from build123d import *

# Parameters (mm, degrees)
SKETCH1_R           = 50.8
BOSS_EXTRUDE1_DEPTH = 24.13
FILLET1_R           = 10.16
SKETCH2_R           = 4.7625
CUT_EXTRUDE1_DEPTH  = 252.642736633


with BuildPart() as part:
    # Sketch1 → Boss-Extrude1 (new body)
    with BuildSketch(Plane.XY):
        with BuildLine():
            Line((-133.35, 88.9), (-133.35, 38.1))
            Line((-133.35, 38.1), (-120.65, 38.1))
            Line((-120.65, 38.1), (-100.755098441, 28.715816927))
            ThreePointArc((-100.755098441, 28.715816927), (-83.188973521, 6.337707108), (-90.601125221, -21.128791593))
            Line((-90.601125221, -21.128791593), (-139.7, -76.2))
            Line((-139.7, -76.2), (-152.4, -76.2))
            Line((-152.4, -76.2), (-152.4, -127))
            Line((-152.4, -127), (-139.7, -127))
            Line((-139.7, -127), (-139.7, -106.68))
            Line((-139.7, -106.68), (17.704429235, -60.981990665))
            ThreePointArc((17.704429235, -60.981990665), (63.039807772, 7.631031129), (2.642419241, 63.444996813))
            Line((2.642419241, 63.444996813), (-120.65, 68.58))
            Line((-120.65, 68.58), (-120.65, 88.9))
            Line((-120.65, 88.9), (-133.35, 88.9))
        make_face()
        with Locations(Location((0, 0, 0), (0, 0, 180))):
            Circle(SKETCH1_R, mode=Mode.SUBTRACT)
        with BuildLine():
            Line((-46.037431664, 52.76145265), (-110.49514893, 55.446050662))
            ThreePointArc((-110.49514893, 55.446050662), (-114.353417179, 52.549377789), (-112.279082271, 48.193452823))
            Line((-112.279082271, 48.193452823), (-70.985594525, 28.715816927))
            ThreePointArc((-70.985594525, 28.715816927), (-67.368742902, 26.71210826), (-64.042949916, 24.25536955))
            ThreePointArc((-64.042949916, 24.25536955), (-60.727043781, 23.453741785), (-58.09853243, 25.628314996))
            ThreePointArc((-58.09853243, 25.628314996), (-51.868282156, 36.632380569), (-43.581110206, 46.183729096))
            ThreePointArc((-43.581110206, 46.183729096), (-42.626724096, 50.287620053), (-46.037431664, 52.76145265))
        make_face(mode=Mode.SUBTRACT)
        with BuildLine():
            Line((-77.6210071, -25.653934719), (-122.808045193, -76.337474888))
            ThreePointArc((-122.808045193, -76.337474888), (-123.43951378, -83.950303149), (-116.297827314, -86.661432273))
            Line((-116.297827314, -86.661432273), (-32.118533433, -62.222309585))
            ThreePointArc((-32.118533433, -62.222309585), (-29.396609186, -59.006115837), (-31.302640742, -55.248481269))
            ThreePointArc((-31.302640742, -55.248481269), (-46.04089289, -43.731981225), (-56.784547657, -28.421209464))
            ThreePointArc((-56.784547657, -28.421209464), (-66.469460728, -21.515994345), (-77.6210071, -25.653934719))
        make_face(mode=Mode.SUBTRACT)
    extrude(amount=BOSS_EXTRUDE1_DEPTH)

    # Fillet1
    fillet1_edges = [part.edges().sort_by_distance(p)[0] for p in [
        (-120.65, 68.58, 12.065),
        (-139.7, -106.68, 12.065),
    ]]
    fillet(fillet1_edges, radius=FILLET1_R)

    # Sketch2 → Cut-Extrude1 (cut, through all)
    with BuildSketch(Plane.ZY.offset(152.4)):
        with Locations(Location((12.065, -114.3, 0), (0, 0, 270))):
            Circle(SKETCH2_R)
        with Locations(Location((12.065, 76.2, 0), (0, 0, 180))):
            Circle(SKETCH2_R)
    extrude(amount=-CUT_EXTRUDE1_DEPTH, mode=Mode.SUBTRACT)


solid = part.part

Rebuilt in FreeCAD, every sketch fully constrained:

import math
import FreeCAD as App
import Part
import Sketcher
Q = App.Units.Quantity


def edges_at(feature, points):
    """Names of the edges that pass closest to the given points."""
    edges = feature.Shape.Edges
    near = lambda p: min(range(len(edges)), key=lambda i: edges[i].distToShape(Part.Vertex(*p))[0])
    return sorted({f"Edge{near(p) + 1}" for p in points})

doc = App.newDocument("Part")
body = doc.addObject("PartDesign::Body", "Body")

sketch1 = body.newObject("Sketcher::SketchObject", "Sketch")
sketch1.AttachmentSupport = (doc.getObject("XY_Plane"), [""])
sketch1.MapMode = "FlatFace"
sketch1.addGeometry(Part.LineSegment(App.Vector(-133.3, 88.9, 0), App.Vector(-133.3, 38.1, 0)), False)
sketch1.addGeometry(Part.LineSegment(App.Vector(-133.3, 38.1, 0), App.Vector(-120.7, 38.1, 0)), False)
sketch1.addGeometry(Part.LineSegment(App.Vector(-120.7, 38.1, 0), App.Vector(-100.8, 28.7, 0)), False)
sketch1.addGeometry(Part.ArcOfCircle(Part.Circle(App.Vector(-114.3, 0, 0), App.Vector(0, 0, 1), 31.8), math.radians(-42), math.radians(65)), False)
sketch1.addGeometry(Part.LineSegment(App.Vector(-90.6, -21.1, 0), App.Vector(-139.7, -76.2, 0)), False)
sketch1.addGeometry(Part.LineSegment(App.Vector(-139.7, -76.2, 0), App.Vector(-152.4, -76.2, 0)), False)
sketch1.addGeometry(Part.LineSegment(App.Vector(-152.4, -76.2, 0), App.Vector(-152.4, -127, 0)), False)
sketch1.addGeometry(Part.LineSegment(App.Vector(-152.4, -127, 0), App.Vector(-139.7, -127, 0)), False)
sketch1.addGeometry(Part.LineSegment(App.Vector(-139.7, -127, 0), App.Vector(-139.7, -106.7, 0)), False)
sketch1.addGeometry(Part.LineSegment(App.Vector(-139.7, -106.7, 0), App.Vector(17.7, -61, 0)), False)
sketch1.addGeometry(Part.ArcOfCircle(Part.Circle(App.Vector(0, 0, 0), App.Vector(0, 0, 1), 63.5), math.radians(-74), math.radians(88)), False)
sketch1.addGeometry(Part.LineSegment(App.Vector(2.6, 63.4, 0), App.Vector(-120.7, 68.6, 0)), False)
sketch1.addGeometry(Part.LineSegment(App.Vector(-120.7, 68.6, 0), App.Vector(-120.7, 88.9, 0)), False)
sketch1.addGeometry(Part.LineSegment(App.Vector(-120.7, 88.9, 0), App.Vector(-133.3, 88.9, 0)), False)
sketch1.addGeometry(Part.LineSegment(App.Vector(-122.8, -76.3, 0), App.Vector(-77.6, -25.7, 0)), False)
sketch1.addGeometry(Part.ArcOfCircle(Part.Circle(App.Vector(-68.1, -34.1, 0), App.Vector(0, 0, 1), 12.7), math.radians(27), math.radians(138)), False)
sketch1.addGeometry(Part.ArcOfCircle(Part.Circle(App.Vector(0, 0, 0), App.Vector(0, 0, 1), 63.5), math.radians(-153), math.radians(-120)), False)
sketch1.addGeometry(Part.ArcOfCircle(Part.Circle(App.Vector(-33.2, -58.6, 0), App.Vector(0, 0, 1), 3.8), math.radians(-74), math.radians(60)), False)
sketch1.addGeometry(Part.LineSegment(App.Vector(-32.1, -62.2, 0), App.Vector(-116.3, -86.7, 0)), False)
sketch1.addGeometry(Part.ArcOfCircle(Part.Circle(App.Vector(-118.1, -80.6, 0), App.Vector(0, 0, 1), 6.3), math.radians(138), math.radians(286)), False)
sketch1.addGeometry(Part.LineSegment(App.Vector(-110.5, 55.4, 0), App.Vector(-46, 52.8, 0)), False)
sketch1.addGeometry(Part.ArcOfCircle(Part.Circle(App.Vector(-46.2, 49, 0), App.Vector(0, 0, 1), 3.8), math.radians(-47), math.radians(88)), False)
sketch1.addGeometry(Part.ArcOfCircle(Part.Circle(App.Vector(0, 0, 0), App.Vector(0, 0, 1), 63.5), math.radians(133), math.radians(156)), False)
sketch1.addGeometry(Part.ArcOfCircle(Part.Circle(App.Vector(-61.6, 27.2, 0), App.Vector(0, 0, 1), 3.8), math.radians(-130), math.radians(-24)), False)
sketch1.addGeometry(Part.ArcOfCircle(Part.Circle(App.Vector(-84.5, 0, 0), App.Vector(0, 0, 1), 31.8), math.radians(49.81), math.radians(64.75)), False)
sketch1.addGeometry(Part.LineSegment(App.Vector(-71, 28.7, 0), App.Vector(-112.3, 48.2, 0)), False)
sketch1.addGeometry(Part.ArcOfCircle(Part.Circle(App.Vector(-110.7, 51.6, 0), App.Vector(0, 0, 1), 3.8), math.radians(88), math.radians(245)), False)
sketch1.addGeometry(Part.Circle(App.Vector(0, 0, 0), App.Vector(0, 0, 1), 50.8), False)
sketch1.addConstraint(Sketcher.Constraint("Coincident", 0, 2, 1, 1))
sketch1.addConstraint(Sketcher.Constraint("Coincident", 1, 2, 2, 1))
sketch1.addConstraint(Sketcher.Constraint("Tangent", 2, 2, 3, 2))
sketch1.addConstraint(Sketcher.Constraint("Tangent", 3, 1, 4, 1))
sketch1.addConstraint(Sketcher.Constraint("Coincident", 4, 2, 5, 1))
sketch1.addConstraint(Sketcher.Constraint("Coincident", 5, 2, 6, 1))
sketch1.addConstraint(Sketcher.Constraint("Coincident", 6, 2, 7, 1))
sketch1.addConstraint(Sketcher.Constraint("Coincident", 7, 2, 8, 1))
sketch1.addConstraint(Sketcher.Constraint("Coincident", 8, 2, 9, 1))
sketch1.addConstraint(Sketcher.Constraint("Tangent", 9, 2, 10, 1))
sketch1.addConstraint(Sketcher.Constraint("Tangent", 10, 2, 11, 1))
sketch1.addConstraint(Sketcher.Constraint("Coincident", 11, 2, 12, 1))
sketch1.addConstraint(Sketcher.Constraint("Coincident", 12, 2, 13, 1))
sketch1.addConstraint(Sketcher.Constraint("Coincident", 13, 2, 0, 1))
sketch1.addConstraint(Sketcher.Constraint("Tangent", 14, 2, 15, 2))
sketch1.addConstraint(Sketcher.Constraint("Tangent", 15, 1, 16, 1))
sketch1.addConstraint(Sketcher.Constraint("Tangent", 16, 2, 17, 2))
sketch1.addConstraint(Sketcher.Constraint("Tangent", 17, 1, 18, 1))
sketch1.addConstraint(Sketcher.Constraint("Tangent", 18, 2, 19, 2))
sketch1.addConstraint(Sketcher.Constraint("Tangent", 19, 1, 14, 1))
sketch1.addConstraint(Sketcher.Constraint("Tangent", 20, 2, 21, 2))
sketch1.addConstraint(Sketcher.Constraint("Tangent", 21, 1, 22, 1))
sketch1.addConstraint(Sketcher.Constraint("Tangent", 22, 2, 23, 2))
sketch1.addConstraint(Sketcher.Constraint("Tangent", 23, 1, 24, 1))
sketch1.addConstraint(Sketcher.Constraint("Tangent", 24, 2, 25, 1))
sketch1.addConstraint(Sketcher.Constraint("Tangent", 25, 2, 26, 2))
sketch1.addConstraint(Sketcher.Constraint("Tangent", 26, 1, 20, 1))
sketch1.addConstraint(Sketcher.Constraint("Vertical", 0))
sketch1.addConstraint(Sketcher.Constraint("Horizontal", 1))
sketch1.addConstraint(Sketcher.Constraint("Horizontal", 5))
sketch1.addConstraint(Sketcher.Constraint("Vertical", 6))
sketch1.addConstraint(Sketcher.Constraint("Horizontal", 7))
sketch1.addConstraint(Sketcher.Constraint("Vertical", 8))
sketch1.addConstraint(Sketcher.Constraint("Vertical", 12))
sketch1.addConstraint(Sketcher.Constraint("Horizontal", 13))
sketch1.addConstraint(Sketcher.Constraint("Coincident", 10, 3, -1, 1))
sketch1.addConstraint(Sketcher.Constraint("Coincident", 16, 3, -1, 1))
sketch1.addConstraint(Sketcher.Constraint("Coincident", 22, 3, -1, 1))
sketch1.addConstraint(Sketcher.Constraint("Coincident", 27, 3, -1, 1))
sketch1.addConstraint(Sketcher.Constraint("Equal", 10, 16))
sketch1.addConstraint(Sketcher.Constraint("Equal", 17, 21))
sketch1.addConstraint(Sketcher.Constraint("Equal", 16, 22))
sketch1.addConstraint(Sketcher.Constraint("Equal", 21, 23))
sketch1.addConstraint(Sketcher.Constraint("Equal", 3, 24))
sketch1.addConstraint(Sketcher.Constraint("Equal", 23, 26))
sketch1.addConstraint(Sketcher.Constraint("PointOnObject", 3, 3, -1))
sketch1.addConstraint(Sketcher.Constraint("PointOnObject", 24, 3, -1))
sketch1.addConstraint(Sketcher.Constraint("Parallel", 4, 14))
sketch1.addConstraint(Sketcher.Constraint("Parallel", 9, 18))
sketch1.addConstraint(Sketcher.Constraint("Parallel", 11, 20))
sketch1.addConstraint(Sketcher.Constraint("Parallel", 2, 25))
sketch1.addConstraint(Sketcher.Constraint("Vertical", 4, 2, 7, 2))
sketch1.addConstraint(Sketcher.Constraint("Vertical", 1, 2, 11, 2))
sketch1.addConstraint(Sketcher.Constraint("Equal", 1, 5))
sketch1.addConstraint(Sketcher.Constraint("Equal", 0, 6))
sketch1.addConstraint(Sketcher.Constraint("Equal", 8, 12))
sketch1.addConstraint(Sketcher.Constraint("Diameter", 27, Q("4 in")))
sketch1.addConstraint(Sketcher.Constraint("Radius", 10, Q("2.5 in")))
sketch1.addConstraint(Sketcher.Constraint("Radius", 15, Q("0.5 in")))
sketch1.addConstraint(Sketcher.Constraint("DistanceY", 0, 2, 0, 1, Q("2 in")))
sketch1.addConstraint(Sketcher.Constraint("Radius", 3, Q("1.25 in")))
sketch1.addConstraint(Sketcher.Constraint("Radius", 17, Q("0.15 in")))
sketch1.addConstraint(Sketcher.Constraint("Radius", 19, Q("0.25 in")))
sketch1.addConstraint(Sketcher.Constraint("DistanceX", 1, 1, 1, 2, Q("0.5 in")))
sketch1.addConstraint(Sketcher.Constraint("DistanceY", 8, 1, 8, 2, Q("0.8 in")))
sketch1.addConstraint(Sketcher.Constraint("DistanceY", 4, 2, -1, 1, Q("3 in")))
sketch1.addConstraint(Sketcher.Constraint("DistanceX", 5, 2, -1, 1, Q("6 in")))
sketch1.addConstraint(Sketcher.Constraint("DistanceX", 4, 2, 3, 3, Q("1 in")))
sketch1.addConstraint(Sketcher.Constraint("DistanceY", -1, 1, 0, 2, Q("1.5 in")))
sketch1.addConstraint(Sketcher.Constraint("DistanceX", 0, 2, -1, 1, Q("5.25 in")))
sketch1.addConstraint(Sketcher.Constraint("DistanceY", 17, 3, 15, 1, Q("1.1867 in")))
sketch1.addConstraint(Sketcher.Constraint("DistanceX", 25, 2, 2, 2, Q("0.4537002 in")))
sketch1.addConstraint(Sketcher.Constraint("Distance", 20, 64.513598))
sketch1.addConstraint(Sketcher.Constraint("DistanceX", 17, 3, -1, 1, 33.180799))
pad1 = body.newObject("PartDesign::Pad", "Pad")
pad1.Profile = sketch1
pad1.Length = Q("0.95 in")
doc.recompute()

fillet = body.newObject("PartDesign::Fillet", "Fillet")
fillet.Base = (pad1, edges_at(pad1, [(-120.65, 68.58, 12.065), (-139.7, -106.68, 12.065)]))
fillet.Radius = Q("0.4 in")

sketch2 = body.newObject("Sketcher::SketchObject", "Sketch001")
sketch2.AttachmentSupport = (doc.getObject("YZ_Plane"), [""])
sketch2.MapMode = "FlatFace"
sketch2.AttachmentOffset = App.Placement(App.Vector(0, 0, -6 * 25.4), App.Rotation())
sketch2.addGeometry(Part.Circle(App.Vector(-114.3, 12.1, 0), App.Vector(0, 0, 1), 4.8), False)
sketch2.addGeometry(Part.Circle(App.Vector(76.2, 12.1, 0), App.Vector(0, 0, 1), 4.8), False)
sketch2.addConstraint(Sketcher.Constraint("Equal", 0, 1))
sketch2.addConstraint(Sketcher.Constraint("Horizontal", 0, 3, 1, 3))
sketch2.addConstraint(Sketcher.Constraint("Diameter", 0, Q("0.375 in")))
sketch2.addConstraint(Sketcher.Constraint("DistanceX", -1, 1, 1, 3, Q("3 in")))
sketch2.addConstraint(Sketcher.Constraint("DistanceX", 0, 3, -1, 1, Q("4.5 in")))
sketch2.addConstraint(Sketcher.Constraint("DistanceY", -1, 1, 0, 3, Q("0.475 in")))
pocket1 = body.newObject("PartDesign::Pocket", "Pocket")
pocket1.Profile = sketch2
pocket1.Type = "ThroughAll"
pocket1.Reversed = True

doc.recompute()
